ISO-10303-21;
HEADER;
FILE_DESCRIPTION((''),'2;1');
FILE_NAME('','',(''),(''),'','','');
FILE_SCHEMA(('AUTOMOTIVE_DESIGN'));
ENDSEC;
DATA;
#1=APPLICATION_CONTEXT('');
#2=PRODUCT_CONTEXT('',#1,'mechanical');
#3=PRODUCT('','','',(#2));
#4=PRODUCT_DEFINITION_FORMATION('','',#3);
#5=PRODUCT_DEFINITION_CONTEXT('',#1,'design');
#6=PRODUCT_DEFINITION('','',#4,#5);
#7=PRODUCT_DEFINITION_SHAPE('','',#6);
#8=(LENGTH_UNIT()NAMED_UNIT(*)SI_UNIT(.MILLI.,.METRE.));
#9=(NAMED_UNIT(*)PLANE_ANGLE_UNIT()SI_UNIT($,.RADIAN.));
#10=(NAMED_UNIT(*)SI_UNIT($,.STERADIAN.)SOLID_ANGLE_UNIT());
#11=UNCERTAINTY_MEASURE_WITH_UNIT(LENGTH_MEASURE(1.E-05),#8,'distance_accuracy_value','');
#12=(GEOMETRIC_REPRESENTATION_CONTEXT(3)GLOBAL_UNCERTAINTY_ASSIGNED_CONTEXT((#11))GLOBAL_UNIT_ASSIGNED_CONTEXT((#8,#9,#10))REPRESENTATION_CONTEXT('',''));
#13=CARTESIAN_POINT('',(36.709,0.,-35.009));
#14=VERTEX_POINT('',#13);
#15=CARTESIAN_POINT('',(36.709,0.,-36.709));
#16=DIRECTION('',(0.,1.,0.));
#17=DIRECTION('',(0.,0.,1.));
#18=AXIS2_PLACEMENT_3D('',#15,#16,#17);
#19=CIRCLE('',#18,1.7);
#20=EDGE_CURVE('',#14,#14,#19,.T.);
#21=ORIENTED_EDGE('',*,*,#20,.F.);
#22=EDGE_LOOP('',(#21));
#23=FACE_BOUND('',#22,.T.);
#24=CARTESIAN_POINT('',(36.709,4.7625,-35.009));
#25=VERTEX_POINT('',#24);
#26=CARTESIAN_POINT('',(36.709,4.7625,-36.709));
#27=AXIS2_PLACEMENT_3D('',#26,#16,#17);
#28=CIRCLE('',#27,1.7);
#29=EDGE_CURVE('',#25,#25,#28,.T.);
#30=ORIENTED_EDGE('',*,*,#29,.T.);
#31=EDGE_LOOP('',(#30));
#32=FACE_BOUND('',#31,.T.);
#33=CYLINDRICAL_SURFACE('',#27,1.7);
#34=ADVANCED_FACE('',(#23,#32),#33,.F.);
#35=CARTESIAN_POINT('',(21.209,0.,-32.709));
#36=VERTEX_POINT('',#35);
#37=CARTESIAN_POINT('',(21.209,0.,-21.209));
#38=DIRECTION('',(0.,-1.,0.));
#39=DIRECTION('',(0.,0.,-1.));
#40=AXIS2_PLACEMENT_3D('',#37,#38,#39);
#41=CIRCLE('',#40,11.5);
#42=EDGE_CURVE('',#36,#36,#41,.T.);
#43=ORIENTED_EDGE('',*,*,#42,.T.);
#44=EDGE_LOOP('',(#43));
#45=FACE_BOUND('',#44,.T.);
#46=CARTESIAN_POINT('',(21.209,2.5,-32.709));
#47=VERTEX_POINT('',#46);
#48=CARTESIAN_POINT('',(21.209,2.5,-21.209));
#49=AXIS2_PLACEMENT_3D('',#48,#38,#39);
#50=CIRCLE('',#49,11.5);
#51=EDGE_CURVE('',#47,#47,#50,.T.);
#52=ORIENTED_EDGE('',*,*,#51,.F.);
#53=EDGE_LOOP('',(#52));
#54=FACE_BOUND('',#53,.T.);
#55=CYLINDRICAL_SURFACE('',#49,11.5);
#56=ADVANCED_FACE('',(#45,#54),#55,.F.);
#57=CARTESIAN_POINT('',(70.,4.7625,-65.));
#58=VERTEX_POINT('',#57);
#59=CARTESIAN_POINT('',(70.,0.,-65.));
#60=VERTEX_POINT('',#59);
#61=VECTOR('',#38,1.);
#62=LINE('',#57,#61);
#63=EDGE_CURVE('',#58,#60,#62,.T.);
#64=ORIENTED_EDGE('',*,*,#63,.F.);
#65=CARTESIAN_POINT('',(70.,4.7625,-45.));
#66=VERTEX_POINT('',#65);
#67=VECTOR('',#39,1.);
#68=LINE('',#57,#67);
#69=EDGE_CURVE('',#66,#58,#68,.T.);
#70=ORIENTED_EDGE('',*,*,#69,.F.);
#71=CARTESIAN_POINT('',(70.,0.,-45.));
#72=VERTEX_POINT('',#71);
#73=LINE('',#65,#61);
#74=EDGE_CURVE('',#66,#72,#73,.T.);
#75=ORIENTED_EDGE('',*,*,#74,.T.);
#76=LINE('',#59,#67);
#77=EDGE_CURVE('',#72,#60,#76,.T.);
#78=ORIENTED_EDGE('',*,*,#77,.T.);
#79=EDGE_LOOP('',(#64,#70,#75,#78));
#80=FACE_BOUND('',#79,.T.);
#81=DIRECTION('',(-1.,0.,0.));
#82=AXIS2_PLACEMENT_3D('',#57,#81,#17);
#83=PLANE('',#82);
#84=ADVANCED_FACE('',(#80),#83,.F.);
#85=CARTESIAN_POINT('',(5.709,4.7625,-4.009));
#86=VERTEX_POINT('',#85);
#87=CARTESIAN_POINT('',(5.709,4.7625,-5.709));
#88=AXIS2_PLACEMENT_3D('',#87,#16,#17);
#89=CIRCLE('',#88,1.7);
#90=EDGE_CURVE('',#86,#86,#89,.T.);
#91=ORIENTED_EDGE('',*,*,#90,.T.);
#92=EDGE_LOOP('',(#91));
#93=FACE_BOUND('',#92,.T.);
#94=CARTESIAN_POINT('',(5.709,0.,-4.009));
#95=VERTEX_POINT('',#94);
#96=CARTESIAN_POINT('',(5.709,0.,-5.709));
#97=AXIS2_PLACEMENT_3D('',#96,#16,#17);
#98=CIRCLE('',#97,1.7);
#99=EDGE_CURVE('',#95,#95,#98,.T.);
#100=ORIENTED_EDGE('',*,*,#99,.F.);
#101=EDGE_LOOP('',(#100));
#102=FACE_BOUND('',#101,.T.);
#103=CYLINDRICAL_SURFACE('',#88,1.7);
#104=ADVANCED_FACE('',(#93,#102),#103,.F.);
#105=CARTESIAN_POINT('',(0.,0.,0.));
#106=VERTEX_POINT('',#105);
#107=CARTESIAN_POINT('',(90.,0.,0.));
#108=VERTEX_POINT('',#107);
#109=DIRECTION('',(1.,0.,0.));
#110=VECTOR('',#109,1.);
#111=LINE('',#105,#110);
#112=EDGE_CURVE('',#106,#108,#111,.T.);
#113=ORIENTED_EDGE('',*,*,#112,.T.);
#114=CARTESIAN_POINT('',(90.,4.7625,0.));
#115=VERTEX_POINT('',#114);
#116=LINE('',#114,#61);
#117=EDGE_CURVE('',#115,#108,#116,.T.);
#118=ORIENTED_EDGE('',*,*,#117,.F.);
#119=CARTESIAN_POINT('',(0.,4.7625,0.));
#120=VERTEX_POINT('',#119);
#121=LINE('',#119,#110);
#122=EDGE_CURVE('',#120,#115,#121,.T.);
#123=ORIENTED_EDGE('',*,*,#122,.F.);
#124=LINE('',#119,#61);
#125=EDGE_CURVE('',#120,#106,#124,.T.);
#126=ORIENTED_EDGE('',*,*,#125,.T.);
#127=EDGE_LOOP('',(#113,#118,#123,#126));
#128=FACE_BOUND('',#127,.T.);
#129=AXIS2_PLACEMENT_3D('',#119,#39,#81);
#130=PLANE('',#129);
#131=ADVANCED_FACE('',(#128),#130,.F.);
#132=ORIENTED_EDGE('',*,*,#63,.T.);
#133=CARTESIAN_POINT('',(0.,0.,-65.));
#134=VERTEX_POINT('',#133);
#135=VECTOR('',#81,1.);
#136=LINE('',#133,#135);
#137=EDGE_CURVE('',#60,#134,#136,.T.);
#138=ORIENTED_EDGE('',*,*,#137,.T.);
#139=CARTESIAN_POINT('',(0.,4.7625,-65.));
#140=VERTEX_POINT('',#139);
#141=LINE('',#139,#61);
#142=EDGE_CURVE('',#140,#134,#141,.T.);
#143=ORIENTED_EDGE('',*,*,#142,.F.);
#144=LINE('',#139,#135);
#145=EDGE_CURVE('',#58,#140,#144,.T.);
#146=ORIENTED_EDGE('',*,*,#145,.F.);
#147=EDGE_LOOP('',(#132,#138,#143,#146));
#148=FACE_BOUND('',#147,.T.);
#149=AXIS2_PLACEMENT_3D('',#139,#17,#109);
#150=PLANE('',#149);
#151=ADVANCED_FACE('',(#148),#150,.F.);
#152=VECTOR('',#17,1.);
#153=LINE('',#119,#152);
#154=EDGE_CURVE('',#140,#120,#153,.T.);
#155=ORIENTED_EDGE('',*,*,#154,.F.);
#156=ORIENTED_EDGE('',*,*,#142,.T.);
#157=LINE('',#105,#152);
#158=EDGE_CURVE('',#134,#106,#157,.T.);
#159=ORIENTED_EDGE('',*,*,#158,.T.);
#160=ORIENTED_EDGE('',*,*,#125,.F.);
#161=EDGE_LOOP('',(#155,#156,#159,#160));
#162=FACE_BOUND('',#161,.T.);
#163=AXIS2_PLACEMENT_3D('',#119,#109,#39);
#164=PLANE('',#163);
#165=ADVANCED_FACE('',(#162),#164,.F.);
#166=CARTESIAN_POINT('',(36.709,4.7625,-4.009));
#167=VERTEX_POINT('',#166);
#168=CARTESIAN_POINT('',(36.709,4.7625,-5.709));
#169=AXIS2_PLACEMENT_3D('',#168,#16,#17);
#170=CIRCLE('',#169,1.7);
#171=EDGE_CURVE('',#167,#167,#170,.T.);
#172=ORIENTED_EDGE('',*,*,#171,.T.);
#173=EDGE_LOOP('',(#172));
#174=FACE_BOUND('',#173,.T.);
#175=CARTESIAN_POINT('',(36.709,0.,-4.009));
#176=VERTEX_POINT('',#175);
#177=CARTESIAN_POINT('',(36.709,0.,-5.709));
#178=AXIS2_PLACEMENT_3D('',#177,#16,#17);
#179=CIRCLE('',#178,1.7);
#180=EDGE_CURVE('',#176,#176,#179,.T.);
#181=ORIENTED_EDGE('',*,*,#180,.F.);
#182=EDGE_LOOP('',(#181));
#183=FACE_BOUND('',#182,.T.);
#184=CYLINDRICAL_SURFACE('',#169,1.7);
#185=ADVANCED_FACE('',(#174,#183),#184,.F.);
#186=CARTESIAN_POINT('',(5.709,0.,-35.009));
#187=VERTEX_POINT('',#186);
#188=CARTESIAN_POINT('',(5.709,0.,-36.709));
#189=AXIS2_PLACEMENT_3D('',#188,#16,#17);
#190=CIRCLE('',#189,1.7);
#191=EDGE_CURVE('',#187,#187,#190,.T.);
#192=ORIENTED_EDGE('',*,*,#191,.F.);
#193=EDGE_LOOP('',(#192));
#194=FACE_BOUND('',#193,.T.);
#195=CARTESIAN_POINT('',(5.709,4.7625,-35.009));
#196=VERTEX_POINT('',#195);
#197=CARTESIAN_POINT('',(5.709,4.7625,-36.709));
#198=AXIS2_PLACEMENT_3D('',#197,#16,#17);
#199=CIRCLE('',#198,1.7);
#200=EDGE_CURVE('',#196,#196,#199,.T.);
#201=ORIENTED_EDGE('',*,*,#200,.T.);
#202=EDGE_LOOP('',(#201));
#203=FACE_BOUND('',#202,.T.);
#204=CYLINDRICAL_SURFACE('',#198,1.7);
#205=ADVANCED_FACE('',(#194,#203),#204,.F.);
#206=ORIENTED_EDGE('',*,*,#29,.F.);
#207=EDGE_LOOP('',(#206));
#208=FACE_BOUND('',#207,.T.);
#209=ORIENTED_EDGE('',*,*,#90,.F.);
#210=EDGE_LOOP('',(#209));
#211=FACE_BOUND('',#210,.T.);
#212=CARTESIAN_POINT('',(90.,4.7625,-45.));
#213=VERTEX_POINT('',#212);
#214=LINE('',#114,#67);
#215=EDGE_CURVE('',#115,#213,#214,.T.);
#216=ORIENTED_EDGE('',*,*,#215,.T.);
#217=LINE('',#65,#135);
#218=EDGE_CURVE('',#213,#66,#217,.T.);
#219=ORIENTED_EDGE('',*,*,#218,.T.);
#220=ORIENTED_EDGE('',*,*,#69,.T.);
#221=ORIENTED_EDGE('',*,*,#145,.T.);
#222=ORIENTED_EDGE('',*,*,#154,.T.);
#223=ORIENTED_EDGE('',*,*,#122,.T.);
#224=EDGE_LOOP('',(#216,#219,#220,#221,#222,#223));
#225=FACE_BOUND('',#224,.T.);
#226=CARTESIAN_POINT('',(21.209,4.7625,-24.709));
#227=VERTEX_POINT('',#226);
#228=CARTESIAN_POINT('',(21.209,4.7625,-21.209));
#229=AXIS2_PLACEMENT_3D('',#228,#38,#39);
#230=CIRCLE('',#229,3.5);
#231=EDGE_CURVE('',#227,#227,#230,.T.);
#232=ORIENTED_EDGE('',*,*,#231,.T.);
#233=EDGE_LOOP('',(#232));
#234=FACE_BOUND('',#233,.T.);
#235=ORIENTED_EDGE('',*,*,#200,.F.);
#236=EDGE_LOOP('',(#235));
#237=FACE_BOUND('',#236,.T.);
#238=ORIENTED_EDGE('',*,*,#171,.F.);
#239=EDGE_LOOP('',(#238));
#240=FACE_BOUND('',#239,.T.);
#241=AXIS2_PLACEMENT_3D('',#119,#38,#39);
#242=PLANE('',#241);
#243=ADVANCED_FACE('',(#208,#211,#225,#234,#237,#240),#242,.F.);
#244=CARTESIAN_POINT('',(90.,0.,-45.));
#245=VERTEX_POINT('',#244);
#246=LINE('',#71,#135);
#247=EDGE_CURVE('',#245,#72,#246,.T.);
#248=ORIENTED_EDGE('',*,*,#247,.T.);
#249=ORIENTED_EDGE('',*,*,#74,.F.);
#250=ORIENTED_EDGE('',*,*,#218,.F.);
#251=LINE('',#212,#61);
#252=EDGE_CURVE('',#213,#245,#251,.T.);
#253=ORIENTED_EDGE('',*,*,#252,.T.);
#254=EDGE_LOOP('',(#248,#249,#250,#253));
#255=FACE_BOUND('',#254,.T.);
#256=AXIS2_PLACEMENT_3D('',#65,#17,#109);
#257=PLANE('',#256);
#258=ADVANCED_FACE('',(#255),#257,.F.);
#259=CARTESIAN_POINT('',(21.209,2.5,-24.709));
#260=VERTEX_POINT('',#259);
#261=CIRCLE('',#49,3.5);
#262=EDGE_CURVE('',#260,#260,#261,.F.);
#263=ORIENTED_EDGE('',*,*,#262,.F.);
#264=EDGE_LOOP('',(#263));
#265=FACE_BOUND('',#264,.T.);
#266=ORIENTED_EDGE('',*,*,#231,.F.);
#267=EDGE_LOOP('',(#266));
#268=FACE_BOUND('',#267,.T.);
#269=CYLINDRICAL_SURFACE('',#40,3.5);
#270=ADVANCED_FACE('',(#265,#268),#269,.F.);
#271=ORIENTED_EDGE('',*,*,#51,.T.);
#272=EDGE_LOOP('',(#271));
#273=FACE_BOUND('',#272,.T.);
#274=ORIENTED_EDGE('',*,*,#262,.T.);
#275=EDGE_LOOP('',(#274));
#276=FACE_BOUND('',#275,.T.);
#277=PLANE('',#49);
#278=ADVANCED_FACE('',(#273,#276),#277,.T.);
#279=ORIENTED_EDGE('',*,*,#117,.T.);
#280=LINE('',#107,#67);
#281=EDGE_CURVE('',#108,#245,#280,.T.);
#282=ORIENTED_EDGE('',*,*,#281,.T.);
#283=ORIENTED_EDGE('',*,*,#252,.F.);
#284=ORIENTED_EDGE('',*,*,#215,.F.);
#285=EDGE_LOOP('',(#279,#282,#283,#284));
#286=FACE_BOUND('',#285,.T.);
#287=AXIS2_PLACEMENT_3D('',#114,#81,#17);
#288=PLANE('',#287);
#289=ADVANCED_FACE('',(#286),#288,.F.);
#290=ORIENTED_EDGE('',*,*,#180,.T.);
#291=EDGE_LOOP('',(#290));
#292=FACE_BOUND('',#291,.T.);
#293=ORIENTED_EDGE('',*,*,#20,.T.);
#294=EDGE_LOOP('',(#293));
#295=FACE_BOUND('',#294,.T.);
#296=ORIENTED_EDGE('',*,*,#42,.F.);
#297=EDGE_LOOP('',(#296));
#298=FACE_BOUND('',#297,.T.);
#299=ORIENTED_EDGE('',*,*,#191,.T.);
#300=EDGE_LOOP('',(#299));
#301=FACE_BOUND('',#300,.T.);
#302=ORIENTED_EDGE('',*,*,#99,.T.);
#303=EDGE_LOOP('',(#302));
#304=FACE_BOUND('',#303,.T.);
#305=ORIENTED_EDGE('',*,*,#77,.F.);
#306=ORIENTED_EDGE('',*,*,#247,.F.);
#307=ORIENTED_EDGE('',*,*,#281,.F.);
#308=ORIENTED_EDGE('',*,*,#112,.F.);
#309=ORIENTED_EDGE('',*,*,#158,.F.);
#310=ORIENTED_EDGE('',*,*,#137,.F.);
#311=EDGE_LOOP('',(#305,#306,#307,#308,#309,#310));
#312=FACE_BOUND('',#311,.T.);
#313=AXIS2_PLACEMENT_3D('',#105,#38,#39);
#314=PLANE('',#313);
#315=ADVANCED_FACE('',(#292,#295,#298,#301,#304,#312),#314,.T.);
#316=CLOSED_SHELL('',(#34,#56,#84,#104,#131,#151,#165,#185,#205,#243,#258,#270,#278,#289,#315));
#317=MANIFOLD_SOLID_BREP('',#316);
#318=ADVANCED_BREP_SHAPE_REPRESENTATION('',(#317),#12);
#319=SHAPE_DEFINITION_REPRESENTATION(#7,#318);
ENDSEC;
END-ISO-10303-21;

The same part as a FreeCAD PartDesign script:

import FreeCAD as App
import Part
import Sketcher

V = App.Vector
Q = App.Units.Quantity


def add_polygon(sketch, points):
    """Adds a closed chain of lines whose ends are joined by coincident constraints."""
    first, n = sketch.GeometryCount, len(points)
    for a, b in zip(points, points[1:] + points[:1]):
        sketch.addGeometry(Part.LineSegment(App.Vector(*a, 0), App.Vector(*b, 0)), False)
    for i in range(n):
        sketch.addConstraint(Sketcher.Constraint("Coincident", first + i, 2, first + (i + 1) % n, 1))

doc = App.newDocument("Part")
body = doc.addObject("PartDesign::Body", "Body")

sketch1 = body.newObject("Sketcher::SketchObject", "Sketch")
sketch1.AttachmentSupport = (doc.getObject("XZ_Plane"), [""])
sketch1.MapMode = "FlatFace"
add_polygon(sketch1, [(70, -45), (70, -65), (0, -65), (0, 0), (90, 0), (90, -45)])
sketch1.addConstraint([
    Sketcher.Constraint("Vertical", 0),
    Sketcher.Constraint("Horizontal", 1),
    Sketcher.Constraint("Vertical", 2),
    Sketcher.Constraint("Horizontal", 3),
    Sketcher.Constraint("Vertical", 4),
    Sketcher.Constraint("Horizontal", 5),
    Sketcher.Constraint("Coincident", 2, 2, -1, 1),
    Sketcher.Constraint("Equal", 5, 0),
    Sketcher.Constraint("DistanceX", 1, 2, 1, 1, Q("70 mm")),
    Sketcher.Constraint("DistanceX", 3, 1, 3, 2, Q("90 mm")),
    Sketcher.Constraint("DistanceY", 2, 1, 2, 2, Q("65 mm")),
])
pad1 = body.newObject("PartDesign::Pad", "Pad")
pad1.Profile = sketch1
pad1.Length = 4.7625
pad1.Reversed = True

sketch2 = body.newObject("Sketcher::SketchObject", "Sketch001")
sketch2.AttachmentSupport = (doc.getObject("XZ_Plane"), [""])
sketch2.MapMode = "FlatFace"
sketch2.AttachmentOffset = App.Placement(V(0, 0, -4.7625), App.Rotation())
sketch2.addGeometry([
    Part.Circle(V(36.7, -5.7, 0), V(0, 0, 1), 1.7),
    Part.Circle(V(36.7, -36.7, 0), V(0, 0, 1), 1.7),
    Part.Circle(V(5.7, -36.7, 0), V(0, 0, 1), 1.7),
    Part.Circle(V(5.7, -5.7, 0), V(0, 0, 1), 1.7),
], False)
sketch2.addConstraint([
    Sketcher.Constraint("Equal", 0, 1),
    Sketcher.Constraint("Equal", 1, 2),
    Sketcher.Constraint("Equal", 2, 3),
    Sketcher.Constraint("Horizontal", 1, 3, 2, 3),
    Sketcher.Constraint("Horizontal", 0, 3, 3, 3),
    Sketcher.Constraint("Vertical", 0, 3, 1, 3),
    Sketcher.Constraint("Vertical", 2, 3, 3, 3),
    Sketcher.Constraint("Diameter", 0, Q("3.4 mm")),
    Sketcher.Constraint("DistanceY", 1, 3, 0, 3, Q("31 mm")),
    Sketcher.Constraint("DistanceX", 2, 3, 1, 3, Q("31 mm")),
    Sketcher.Constraint("DistanceX", -1, 1, 0, 3, Q("36.709 mm")),
    Sketcher.Constraint("DistanceY", 0, 3, -1, 1, Q("5.709 mm")),
])
doc.recompute()
hole = body.newObject("PartDesign::Hole", "Hole")
hole.Profile = sketch2
hole.ThreadType = "None"
hole.Diameter = 3.4
hole.DepthType = "ThroughAll"
hole.Reversed = True

sketch3 = body.newObject("Sketcher::SketchObject", "Sketch002")
sketch3.AttachmentSupport = (doc.getObject("XZ_Plane"), [""])
sketch3.MapMode = "FlatFace"
sketch3.addGeometry(Part.Circle(V(21.2, -21.2, 0), V(0, 0, 1), 3.5), False)
sketch3.addConstraint([
    Sketcher.Constraint("Diameter", 0, Q("7 mm")),
    Sketcher.Constraint("DistanceX", -1, 1, 0, 3, Q("21.209 mm")),
    Sketcher.Constraint("DistanceY", 0, 3, -1, 1, Q("21.209 mm")),
])
doc.recompute()
hole2 = body.newObject("PartDesign::Hole", "Hole001")
hole2.Profile = sketch3
hole2.ThreadType = "None"
hole2.Diameter = 7
hole2.DepthType = "ThroughAll"

sketch4 = body.newObject("Sketcher::SketchObject", "Sketch003")
sketch4.AttachmentSupport = (doc.getObject("XZ_Plane"), [""])
sketch4.MapMode = "FlatFace"
sketch4.addGeometry(Part.Circle(V(21, -21, 0), V(0, 0, 1), 12), False)
sketch4.addConstraint([
    Sketcher.Constraint("Diameter", 0, Q("23 mm")),
    Sketcher.Constraint("DistanceX", -1, 1, 0, 3, Q("21.209 mm")),
    Sketcher.Constraint("DistanceY", 0, 3, -1, 1, Q("21.209 mm")),
])
pocket1 = body.newObject("PartDesign::Pocket", "Pocket")
pocket1.Profile = sketch4
pocket1.Length = 2.5

doc.recompute()
